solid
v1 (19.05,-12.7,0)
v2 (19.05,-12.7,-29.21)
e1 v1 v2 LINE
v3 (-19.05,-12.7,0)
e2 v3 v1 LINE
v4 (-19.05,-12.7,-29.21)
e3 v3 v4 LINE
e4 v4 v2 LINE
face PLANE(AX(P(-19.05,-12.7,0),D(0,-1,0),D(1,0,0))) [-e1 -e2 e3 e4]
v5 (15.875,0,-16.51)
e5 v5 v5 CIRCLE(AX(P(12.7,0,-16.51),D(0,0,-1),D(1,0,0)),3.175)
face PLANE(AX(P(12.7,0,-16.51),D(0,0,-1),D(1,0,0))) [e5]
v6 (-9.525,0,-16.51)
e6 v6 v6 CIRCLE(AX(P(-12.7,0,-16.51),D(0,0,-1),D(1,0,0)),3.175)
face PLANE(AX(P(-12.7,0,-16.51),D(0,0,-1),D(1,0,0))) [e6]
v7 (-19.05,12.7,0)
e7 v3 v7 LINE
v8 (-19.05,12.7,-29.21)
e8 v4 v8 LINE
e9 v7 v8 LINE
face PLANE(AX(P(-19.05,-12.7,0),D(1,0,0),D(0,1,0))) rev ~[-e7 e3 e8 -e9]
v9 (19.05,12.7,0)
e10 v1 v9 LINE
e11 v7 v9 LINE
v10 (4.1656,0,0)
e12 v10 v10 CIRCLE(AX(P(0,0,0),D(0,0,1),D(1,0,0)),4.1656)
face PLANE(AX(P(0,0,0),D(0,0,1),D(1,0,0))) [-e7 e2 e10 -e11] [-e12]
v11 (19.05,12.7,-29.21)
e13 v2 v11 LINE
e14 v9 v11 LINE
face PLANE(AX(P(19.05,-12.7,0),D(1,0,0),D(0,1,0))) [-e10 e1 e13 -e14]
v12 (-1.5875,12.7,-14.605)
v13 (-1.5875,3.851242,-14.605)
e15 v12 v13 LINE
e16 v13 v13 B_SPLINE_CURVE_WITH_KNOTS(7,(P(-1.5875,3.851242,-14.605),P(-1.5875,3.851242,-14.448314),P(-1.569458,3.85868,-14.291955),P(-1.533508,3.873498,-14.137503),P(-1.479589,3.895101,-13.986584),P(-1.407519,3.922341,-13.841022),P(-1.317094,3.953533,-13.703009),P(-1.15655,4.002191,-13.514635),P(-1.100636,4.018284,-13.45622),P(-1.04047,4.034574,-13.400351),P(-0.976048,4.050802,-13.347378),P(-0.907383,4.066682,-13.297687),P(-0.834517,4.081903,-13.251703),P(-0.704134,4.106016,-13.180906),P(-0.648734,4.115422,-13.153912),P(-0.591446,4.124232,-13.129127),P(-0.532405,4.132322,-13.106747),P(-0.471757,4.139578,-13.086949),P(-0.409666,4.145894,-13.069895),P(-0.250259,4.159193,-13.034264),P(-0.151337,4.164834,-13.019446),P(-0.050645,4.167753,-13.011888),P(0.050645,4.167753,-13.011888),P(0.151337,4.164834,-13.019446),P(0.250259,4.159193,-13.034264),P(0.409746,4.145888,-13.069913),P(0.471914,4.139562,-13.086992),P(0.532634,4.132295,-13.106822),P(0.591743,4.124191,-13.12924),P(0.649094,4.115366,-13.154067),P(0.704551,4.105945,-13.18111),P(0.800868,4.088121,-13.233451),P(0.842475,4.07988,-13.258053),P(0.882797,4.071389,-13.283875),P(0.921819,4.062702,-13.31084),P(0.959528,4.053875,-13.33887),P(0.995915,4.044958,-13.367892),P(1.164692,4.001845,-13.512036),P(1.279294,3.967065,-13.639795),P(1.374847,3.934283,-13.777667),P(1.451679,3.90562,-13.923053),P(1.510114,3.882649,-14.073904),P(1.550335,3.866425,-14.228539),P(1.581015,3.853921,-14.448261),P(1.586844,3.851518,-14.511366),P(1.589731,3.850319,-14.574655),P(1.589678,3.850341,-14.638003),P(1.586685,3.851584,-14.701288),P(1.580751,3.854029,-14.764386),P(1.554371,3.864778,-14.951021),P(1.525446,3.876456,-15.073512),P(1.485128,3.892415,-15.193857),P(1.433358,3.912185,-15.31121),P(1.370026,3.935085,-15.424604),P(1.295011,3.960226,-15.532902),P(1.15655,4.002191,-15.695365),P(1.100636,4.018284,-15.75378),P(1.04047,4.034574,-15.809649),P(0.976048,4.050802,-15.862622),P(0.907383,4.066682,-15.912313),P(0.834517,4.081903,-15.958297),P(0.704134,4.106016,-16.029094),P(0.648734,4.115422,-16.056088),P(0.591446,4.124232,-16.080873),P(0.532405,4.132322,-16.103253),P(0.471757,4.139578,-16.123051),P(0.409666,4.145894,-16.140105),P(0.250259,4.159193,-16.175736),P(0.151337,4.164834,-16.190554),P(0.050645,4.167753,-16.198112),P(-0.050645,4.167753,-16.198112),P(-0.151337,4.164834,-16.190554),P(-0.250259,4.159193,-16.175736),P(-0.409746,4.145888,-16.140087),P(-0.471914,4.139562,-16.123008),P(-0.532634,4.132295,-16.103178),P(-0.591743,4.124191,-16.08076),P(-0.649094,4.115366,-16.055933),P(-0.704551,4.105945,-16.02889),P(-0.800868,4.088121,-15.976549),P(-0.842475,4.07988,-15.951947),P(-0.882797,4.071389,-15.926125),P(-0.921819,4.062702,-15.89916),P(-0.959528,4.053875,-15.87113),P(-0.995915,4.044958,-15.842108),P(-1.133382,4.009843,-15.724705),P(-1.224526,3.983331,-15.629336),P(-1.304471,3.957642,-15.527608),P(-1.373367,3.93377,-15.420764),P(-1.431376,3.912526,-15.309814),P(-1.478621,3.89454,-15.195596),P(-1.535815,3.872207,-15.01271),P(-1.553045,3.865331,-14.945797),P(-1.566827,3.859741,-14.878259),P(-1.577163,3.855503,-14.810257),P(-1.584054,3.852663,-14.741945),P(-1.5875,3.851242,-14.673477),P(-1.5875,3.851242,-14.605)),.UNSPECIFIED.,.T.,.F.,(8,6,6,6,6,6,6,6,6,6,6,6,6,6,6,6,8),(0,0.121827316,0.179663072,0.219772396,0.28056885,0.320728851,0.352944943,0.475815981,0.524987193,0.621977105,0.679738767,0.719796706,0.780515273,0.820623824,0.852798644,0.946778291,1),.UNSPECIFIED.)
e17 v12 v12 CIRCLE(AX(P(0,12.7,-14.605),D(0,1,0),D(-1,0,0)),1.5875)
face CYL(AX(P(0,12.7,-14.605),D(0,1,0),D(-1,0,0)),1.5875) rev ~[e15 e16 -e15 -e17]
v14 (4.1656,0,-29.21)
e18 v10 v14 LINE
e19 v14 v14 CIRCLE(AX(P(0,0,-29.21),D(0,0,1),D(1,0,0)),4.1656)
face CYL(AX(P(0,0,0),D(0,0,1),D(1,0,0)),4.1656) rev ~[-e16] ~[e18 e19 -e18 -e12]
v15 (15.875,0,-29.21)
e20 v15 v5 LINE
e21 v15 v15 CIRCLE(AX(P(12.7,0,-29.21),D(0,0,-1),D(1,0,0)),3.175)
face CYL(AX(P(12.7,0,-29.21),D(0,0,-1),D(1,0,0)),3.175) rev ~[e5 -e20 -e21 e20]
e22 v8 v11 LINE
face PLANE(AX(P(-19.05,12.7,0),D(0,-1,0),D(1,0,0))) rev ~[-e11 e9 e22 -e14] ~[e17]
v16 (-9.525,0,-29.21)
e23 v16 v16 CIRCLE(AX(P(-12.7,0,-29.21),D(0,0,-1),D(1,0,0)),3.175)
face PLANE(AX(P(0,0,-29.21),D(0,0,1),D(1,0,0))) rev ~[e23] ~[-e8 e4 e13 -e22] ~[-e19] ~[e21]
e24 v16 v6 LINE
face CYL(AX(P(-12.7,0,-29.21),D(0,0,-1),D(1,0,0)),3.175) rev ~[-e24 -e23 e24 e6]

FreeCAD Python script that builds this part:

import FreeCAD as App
import Part
import Sketcher
from FreeCAD import Vector
Q = App.Units.Quantity


def add_polygon(sketch, points):
    """Adds a closed chain of lines whose ends are joined by coincident constraints."""
    first, n = sketch.GeometryCount, len(points)
    for a, b in zip(points, points[1:] + points[:1]):
        sketch.addGeometry(Part.LineSegment(App.Vector(*a, 0), App.Vector(*b, 0)), False)
    for i in range(n):
        sketch.addConstraint(Sketcher.Constraint("Coincident", first + i, 2, first + (i + 1) % n, 1))

doc = App.newDocument("Part")
body = doc.addObject("PartDesign::Body", "Body")

# Sketch on XY plane
sketch1 = body.newObject("Sketcher::SketchObject", "Sketch")
sketch1.AttachmentSupport = (doc.getObject("XY_Plane"), [""])
sketch1.MapMode = "FlatFace"
add_polygon(sketch1, [(-19.05, 12.7), (-19.05, -12.7), (19.05, -12.7), (19.05, 12.7)])  # lines 0-3
sketch1.addGeometry(Part.Circle(Vector(0, 0, 0), Vector(0, 0, 1), 4.1656), False)  # 4
sketch1.addConstraint(Sketcher.Constraint("Vertical", 0))
sketch1.addConstraint(Sketcher.Constraint("Horizontal", 1))
sketch1.addConstraint(Sketcher.Constraint("Vertical", 2))
sketch1.addConstraint(Sketcher.Constraint("Horizontal", 3))
sketch1.addConstraint(Sketcher.Constraint("Coincident", 4, 3, -1, 1))
sketch1.addConstraint(Sketcher.Constraint("Symmetric", 0, 2, 2, 2, -1, 1))
sketch1.addConstraint(Sketcher.Constraint("DistanceY", 0, 2, 0, 1, Q("1 in")))
sketch1.addConstraint(Sketcher.Constraint("Diameter", 4, Q("0.328 in")))
sketch1.addConstraint(Sketcher.Constraint("DistanceX", 1, 1, 1, 2, Q("1.5 in")))
pad1 = body.newObject("PartDesign::Pad", "Pad")
pad1.Profile = sketch1
pad1.Length = Q("1.15 in")
pad1.Reversed = True

# Sketch on XY plane
sketch2 = body.newObject("Sketcher::SketchObject", "Sketch001")
sketch2.AttachmentSupport = (doc.getObject("XY_Plane"), [""])
sketch2.MapMode = "FlatFace"
sketch2.AttachmentOffset = App.Placement(Vector(0, 0, -1.15 * 25.4), App.Rotation())
sketch2.addGeometry(Part.Circle(Vector(-12.7, 0, 0), Vector(0, 0, 1), 3.175), False)
sketch2.addGeometry(Part.Circle(Vector(12.7, 0, 0), Vector(0, 0, 1), 3.175), False)
sketch2.addConstraint(Sketcher.Constraint("Equal", 0, 1))
sketch2.addConstraint(Sketcher.Constraint("Symmetric", 0, 3, 1, 3, -1, 1))
sketch2.addConstraint(Sketcher.Constraint("PointOnObject", 0, 3, -1))
sketch2.addConstraint(Sketcher.Constraint("Diameter", 0, Q("0.25 in")))
sketch2.addConstraint(Sketcher.Constraint("DistanceX", 0, 3, 1, 3, Q("1 in")))
pocket1 = body.newObject("PartDesign::Pocket", "Pocket")
pocket1.Profile = sketch2
pocket1.Length = Q("0.5 in")
pocket1.Reversed = True

# Sketch on XZ plane
sketch3 = body.newObject("Sketcher::SketchObject", "Sketch002")
sketch3.AttachmentSupport = (doc.getObject("XZ_Plane"), [""])
sketch3.MapMode = "FlatFace"
sketch3.AttachmentOffset = App.Placement(Vector(0, 0, -0.5 * 25.4), App.Rotation())
sketch3.addGeometry(Part.Circle(Vector(0, -14.605, 0), Vector(0, 0, 1), 1.5875), False)
sketch3.addConstraint(Sketcher.Constraint("PointOnObject", 0, 3, -2))
sketch3.addConstraint(Sketcher.Constraint("Diameter", 0, Q("0.125 in")))
sketch3.addConstraint(Sketcher.Constraint("DistanceY", 0, 3, -1, 1, Q("0.575 in")))
pocket2 = body.newObject("PartDesign::Pocket", "Pocket001")
pocket2.Profile = sketch3
pocket2.Length = Q("0.5 in")
pocket2.Reversed = True

doc.recompute()
